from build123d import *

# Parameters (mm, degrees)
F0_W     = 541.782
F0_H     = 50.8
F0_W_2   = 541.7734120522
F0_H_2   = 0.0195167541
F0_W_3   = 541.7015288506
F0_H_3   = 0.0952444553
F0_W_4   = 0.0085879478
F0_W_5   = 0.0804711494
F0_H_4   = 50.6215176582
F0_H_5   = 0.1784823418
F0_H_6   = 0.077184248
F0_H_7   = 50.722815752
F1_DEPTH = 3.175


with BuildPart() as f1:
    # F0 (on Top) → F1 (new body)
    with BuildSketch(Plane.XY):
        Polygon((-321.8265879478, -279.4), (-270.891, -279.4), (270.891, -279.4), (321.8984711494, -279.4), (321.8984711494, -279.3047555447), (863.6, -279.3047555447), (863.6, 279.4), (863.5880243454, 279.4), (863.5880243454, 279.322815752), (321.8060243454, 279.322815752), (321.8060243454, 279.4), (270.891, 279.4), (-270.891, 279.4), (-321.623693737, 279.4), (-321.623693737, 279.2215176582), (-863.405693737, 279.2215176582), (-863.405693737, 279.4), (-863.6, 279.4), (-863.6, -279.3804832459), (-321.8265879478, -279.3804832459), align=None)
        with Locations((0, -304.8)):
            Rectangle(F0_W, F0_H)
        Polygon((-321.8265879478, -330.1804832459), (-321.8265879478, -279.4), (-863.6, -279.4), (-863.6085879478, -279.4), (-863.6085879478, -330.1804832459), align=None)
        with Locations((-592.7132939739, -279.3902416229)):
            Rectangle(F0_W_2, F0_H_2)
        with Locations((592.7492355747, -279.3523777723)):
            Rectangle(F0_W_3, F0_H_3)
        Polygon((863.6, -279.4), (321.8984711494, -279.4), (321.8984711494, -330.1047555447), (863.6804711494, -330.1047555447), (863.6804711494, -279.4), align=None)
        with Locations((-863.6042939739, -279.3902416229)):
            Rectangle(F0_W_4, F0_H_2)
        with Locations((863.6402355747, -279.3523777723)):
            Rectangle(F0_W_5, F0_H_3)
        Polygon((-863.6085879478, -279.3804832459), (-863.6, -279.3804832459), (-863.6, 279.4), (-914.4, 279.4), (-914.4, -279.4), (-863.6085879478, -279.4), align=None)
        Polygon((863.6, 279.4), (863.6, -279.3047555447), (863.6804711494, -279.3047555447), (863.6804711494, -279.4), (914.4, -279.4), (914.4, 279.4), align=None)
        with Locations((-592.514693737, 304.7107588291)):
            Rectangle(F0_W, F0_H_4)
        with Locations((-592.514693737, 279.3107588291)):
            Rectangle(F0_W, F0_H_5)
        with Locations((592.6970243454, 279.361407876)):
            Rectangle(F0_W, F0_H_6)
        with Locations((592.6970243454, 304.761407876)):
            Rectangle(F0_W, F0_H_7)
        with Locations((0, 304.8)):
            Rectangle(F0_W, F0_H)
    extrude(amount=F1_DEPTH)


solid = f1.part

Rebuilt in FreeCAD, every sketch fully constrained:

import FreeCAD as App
import Part
import Sketcher

V = App.Vector
Q = App.Units.Quantity


def add_polygon(sketch, points):
    """Adds a closed chain of lines whose ends are joined by coincident constraints."""
    first, n = sketch.GeometryCount, len(points)
    for a, b in zip(points, points[1:] + points[:1]):
        sketch.addGeometry(Part.LineSegment(App.Vector(*a, 0), App.Vector(*b, 0)), False)
    for i in range(n):
        sketch.addConstraint(Sketcher.Constraint("Coincident", first + i, 2, first + (i + 1) % n, 1))

doc = App.newDocument("Part")
params = doc.addObject("Spreadsheet::Sheet", "Params")
for row, (alias, value) in enumerate([
    ("sketch1_height", "2 in"),
    ("sketch1_height2", "22 in"),
    ("sketch1_width", "21.33 in"),
    ("pad1_length", "0.125 in"),
], start=1):
    params.set(f"A{row}", alias)
    params.set(f"B{row}", "=" + value)
    params.setAlias(f"B{row}", alias)

body = doc.addObject("PartDesign::Body", "Body")

# Sketch on XY plane
sketch1 = doc.addObject("Sketcher::SketchObject", "Sketch")
body.addObject(sketch1)
sketch1.AttachmentSupport = (doc.XY_Plane, [""])
sketch1.MapMode = "FlatFace"
add_polygon(sketch1, [(-322, -279), (-271, -279), (-271, -330), (271, -330), (271, -279), (322, -279), (322, -330), (864, -330), (864, -279), (914, -279), (914, 279), (864, 279), (864, 330), (322, 330), (322, 279), (271, 279), (271, 330), (-271, 330), (-271, 279), (-322, 279), (-322, 330), (-863, 330), (-863, 279), (-914, 279), (-914, -279), (-864, -279), (-864, -330), (-322, -330)])  # lines 0-27
sketch1.addConstraint(Sketcher.Constraint("Horizontal", 0))
sketch1.addConstraint(Sketcher.Constraint("Vertical", 1))
sketch1.addConstraint(Sketcher.Constraint("Horizontal", 2))
sketch1.addConstraint(Sketcher.Constraint("Vertical", 3))
sketch1.addConstraint(Sketcher.Constraint("Horizontal", 4))
sketch1.addConstraint(Sketcher.Constraint("Vertical", 5))
sketch1.addConstraint(Sketcher.Constraint("Horizontal", 6))
sketch1.addConstraint(Sketcher.Constraint("Vertical", 7))
sketch1.addConstraint(Sketcher.Constraint("Horizontal", 8))
sketch1.addConstraint(Sketcher.Constraint("Vertical", 9))
sketch1.addConstraint(Sketcher.Constraint("Horizontal", 10))
sketch1.addConstraint(Sketcher.Constraint("Vertical", 11))
sketch1.addConstraint(Sketcher.Constraint("Horizontal", 12))
sketch1.addConstraint(Sketcher.Constraint("Vertical", 13))
sketch1.addConstraint(Sketcher.Constraint("Horizontal", 14))
sketch1.addConstraint(Sketcher.Constraint("Vertical", 15))
sketch1.addConstraint(Sketcher.Constraint("Horizontal", 16))
sketch1.addConstraint(Sketcher.Constraint("Vertical", 17))
sketch1.addConstraint(Sketcher.Constraint("Horizontal", 18))
sketch1.addConstraint(Sketcher.Constraint("Vertical", 19))
sketch1.addConstraint(Sketcher.Constraint("Horizontal", 20))
sketch1.addConstraint(Sketcher.Constraint("Vertical", 21))
sketch1.addConstraint(Sketcher.Constraint("Horizontal", 22))
sketch1.addConstraint(Sketcher.Constraint("Vertical", 23))
sketch1.addConstraint(Sketcher.Constraint("Horizontal", 24))
sketch1.addConstraint(Sketcher.Constraint("Vertical", 25))
sketch1.addConstraint(Sketcher.Constraint("Horizontal", 26))
sketch1.addConstraint(Sketcher.Constraint("Vertical", 27))
sketch1.addConstraint(Sketcher.Constraint("Symmetric", 0, 2, 14, 2, -1, 1))
sketch1.addConstraint(Sketcher.Constraint("Symmetric", 2, 2, 16, 2, -1, 1))
sketch1.addConstraint(Sketcher.Constraint("Symmetric", 8, 2, 22, 2, -1, 1))
sketch1.addConstraint(Sketcher.Constraint("Symmetric", 0, 2, 3, 2, -2))
sketch1.addConstraint(Sketcher.Constraint("Horizontal", 4, 2, 7, 2))
sketch1.addConstraint(Sketcher.Constraint("Horizontal", 10, 2, 13, 2))
sketch1.addConstraint(Sketcher.Constraint("Horizontal", 14, 2, 17, 2))
sketch1.addConstraint(Sketcher.Constraint("Horizontal", 8, 2, 23, 2))
sketch1.addConstraint(Sketcher.Constraint("Equal", 2, 6))
sketch1.addConstraint(Sketcher.Constraint("Equal", 6, 12))
sketch1.addConstraint(Sketcher.Constraint("Equal", 16, 20))
sketch1.addConstraint(Sketcher.Constraint("Equal", 20, 26))
sketch1.addConstraint(Sketcher.Constraint("DistanceY", 1, 2, 1, 1, Q("2 in")))
sketch1.addConstraint(Sketcher.Constraint("DistanceY", 9, 1, 9, 2, Q("22 in")))
sketch1.addConstraint(Sketcher.Constraint("DistanceX", -1, 1, 8, 2, Q("36 in")))
sketch1.addConstraint(Sketcher.Constraint("DistanceX", 2, 1, 2, 2, Q("21.33 in")))
sketch1.addConstraint(Sketcher.Constraint("DistanceX", 4, 1, 4, 2, 51.007471))
sketch1.addConstraint(Sketcher.Constraint("DistanceX", 0, 1, 0, 2, 50.935588))
sketch1.addConstraint(Sketcher.Constraint("DistanceX", 10, 2, 10, 1, 50.811976))
sketch1.addConstraint(Sketcher.Constraint("DistanceX", 18, 2, 18, 1, 50.732694))
sketch1.addConstraint(Sketcher.Constraint("DistanceY", 5, 2, 5, 1, 50.704756))
sketch1.addConstraint(Sketcher.Constraint("DistanceY", 11, 1, 11, 2, 50.722816))
sketch1.addConstraint(Sketcher.Constraint("DistanceY", 19, 1, 19, 2, 50.621518))
sketch1.addConstraint(Sketcher.Constraint("DistanceY", 25, 2, 25, 1, 50.780483))
sketch1.setExpression("Constraints[68]", "Params.sketch1_height")
sketch1.setExpression("Constraints[69]", "Params.sketch1_height2")
sketch1.setExpression("Constraints[71]", "Params.sketch1_width")
pad1 = doc.addObject("PartDesign::Pad", "Pad")
body.addObject(pad1)
pad1.Profile = sketch1
pad1.setExpression("Length", "Params.pad1_length")

doc.recompute()
